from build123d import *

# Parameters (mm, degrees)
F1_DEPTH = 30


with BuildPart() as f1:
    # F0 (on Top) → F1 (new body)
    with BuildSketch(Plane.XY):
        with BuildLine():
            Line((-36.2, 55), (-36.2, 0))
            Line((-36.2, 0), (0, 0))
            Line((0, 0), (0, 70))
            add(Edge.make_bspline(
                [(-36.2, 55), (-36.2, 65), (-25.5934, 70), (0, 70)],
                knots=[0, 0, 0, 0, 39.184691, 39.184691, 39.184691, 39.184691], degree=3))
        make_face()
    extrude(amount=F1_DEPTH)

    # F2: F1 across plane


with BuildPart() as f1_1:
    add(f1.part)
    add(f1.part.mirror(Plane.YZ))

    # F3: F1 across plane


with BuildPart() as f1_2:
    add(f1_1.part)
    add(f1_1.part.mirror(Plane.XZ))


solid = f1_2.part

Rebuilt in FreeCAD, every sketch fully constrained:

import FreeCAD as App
import Part
import Sketcher

V = App.Vector

doc = App.newDocument("Part")
params = doc.addObject("Spreadsheet::Sheet", "Params")
for row, (alias, value) in enumerate([
    ("pad1_length", "30 mm"),
], start=1):
    params.set(f"A{row}", alias)
    params.set(f"B{row}", "=" + value)
    params.setAlias(f"B{row}", alias)

body = doc.addObject("PartDesign::Body", "Body")

# Sketch on XY plane
sketch1 = doc.addObject("Sketcher::SketchObject", "Sketch")
body.addObject(sketch1)
sketch1.AttachmentSupport = (doc.XY_Plane, [""])
sketch1.MapMode = "FlatFace"
sketch1.addGeometry([
    Part.LineSegment(V(-36.2, 55, 0), V(-36.2, 0, 0)),
    Part.LineSegment(V(-36.2, 0, 0), V(0, 0, 0)),
    Part.LineSegment(V(0, 0, 0), V(0, 70, 0)),
    Part.BSplineCurve([V(-36.2, 55, 0), V(-36.2, 65, 0), V(-25.5934, 70, 0), V(0, 70, 0)], [4, 4], [0, 39.184691], False, 3, [1, 1, 1, 1], False),
], False)
sketch1.addConstraint([
    Sketcher.Constraint("Block", 3),
    Sketcher.Constraint("Coincident", 0, 2, 1, 1),
    Sketcher.Constraint("Coincident", 1, 2, 2, 1),
    Sketcher.Constraint("Coincident", 2, 2, 3, 2),
    Sketcher.Constraint("Coincident", 3, 1, 0, 1),
    Sketcher.Constraint("Vertical", 0),
    Sketcher.Constraint("Horizontal", 1),
    Sketcher.Constraint("Vertical", 2),
    Sketcher.Constraint("PointOnObject", 0, 2, -1),
])
pad1 = doc.addObject("PartDesign::Pad", "Pad")
body.addObject(pad1)
pad1.Profile = sketch1
pad1.setExpression("Length", "Params.pad1_length")
body2 = doc.addObject("PartDesign::Body", "Body001")
doc.recompute()

body2.BaseFeature = body
doc.recompute()

mirroring = doc.addObject("Part::Mirroring", "Mirroring")
mirroring.Source = body
mirroring.Base = V(0, 0, 0)
mirroring.Normal = V(1, 0, 0)
body3 = doc.addObject("PartDesign::Body", "Body002")
body3.BaseFeature = mirroring
boolean = doc.addObject("PartDesign::Boolean", "Boolean")
body2.addObject(boolean)
boolean.Type = "Fuse"
boolean.addObjects([body3])
doc.recompute()
body4 = doc.addObject("PartDesign::Body", "Body003")
doc.recompute()

body4.BaseFeature = body2
doc.recompute()

mirroring2 = doc.addObject("Part::Mirroring", "Mirroring001")
mirroring2.Source = body2
mirroring2.Base = V(0, 0, 0)
mirroring2.Normal = V(0, -1, 0)
body5 = doc.addObject("PartDesign::Body", "Body004")
body5.BaseFeature = mirroring2
boolean2 = doc.addObject("PartDesign::Boolean", "Boolean001")
body4.addObject(boolean2)
boolean2.Type = "Fuse"
boolean2.addObjects([body5])
doc.recompute()
mirroring.Visibility = False
mirroring2.Visibility = False

doc.recompute()
